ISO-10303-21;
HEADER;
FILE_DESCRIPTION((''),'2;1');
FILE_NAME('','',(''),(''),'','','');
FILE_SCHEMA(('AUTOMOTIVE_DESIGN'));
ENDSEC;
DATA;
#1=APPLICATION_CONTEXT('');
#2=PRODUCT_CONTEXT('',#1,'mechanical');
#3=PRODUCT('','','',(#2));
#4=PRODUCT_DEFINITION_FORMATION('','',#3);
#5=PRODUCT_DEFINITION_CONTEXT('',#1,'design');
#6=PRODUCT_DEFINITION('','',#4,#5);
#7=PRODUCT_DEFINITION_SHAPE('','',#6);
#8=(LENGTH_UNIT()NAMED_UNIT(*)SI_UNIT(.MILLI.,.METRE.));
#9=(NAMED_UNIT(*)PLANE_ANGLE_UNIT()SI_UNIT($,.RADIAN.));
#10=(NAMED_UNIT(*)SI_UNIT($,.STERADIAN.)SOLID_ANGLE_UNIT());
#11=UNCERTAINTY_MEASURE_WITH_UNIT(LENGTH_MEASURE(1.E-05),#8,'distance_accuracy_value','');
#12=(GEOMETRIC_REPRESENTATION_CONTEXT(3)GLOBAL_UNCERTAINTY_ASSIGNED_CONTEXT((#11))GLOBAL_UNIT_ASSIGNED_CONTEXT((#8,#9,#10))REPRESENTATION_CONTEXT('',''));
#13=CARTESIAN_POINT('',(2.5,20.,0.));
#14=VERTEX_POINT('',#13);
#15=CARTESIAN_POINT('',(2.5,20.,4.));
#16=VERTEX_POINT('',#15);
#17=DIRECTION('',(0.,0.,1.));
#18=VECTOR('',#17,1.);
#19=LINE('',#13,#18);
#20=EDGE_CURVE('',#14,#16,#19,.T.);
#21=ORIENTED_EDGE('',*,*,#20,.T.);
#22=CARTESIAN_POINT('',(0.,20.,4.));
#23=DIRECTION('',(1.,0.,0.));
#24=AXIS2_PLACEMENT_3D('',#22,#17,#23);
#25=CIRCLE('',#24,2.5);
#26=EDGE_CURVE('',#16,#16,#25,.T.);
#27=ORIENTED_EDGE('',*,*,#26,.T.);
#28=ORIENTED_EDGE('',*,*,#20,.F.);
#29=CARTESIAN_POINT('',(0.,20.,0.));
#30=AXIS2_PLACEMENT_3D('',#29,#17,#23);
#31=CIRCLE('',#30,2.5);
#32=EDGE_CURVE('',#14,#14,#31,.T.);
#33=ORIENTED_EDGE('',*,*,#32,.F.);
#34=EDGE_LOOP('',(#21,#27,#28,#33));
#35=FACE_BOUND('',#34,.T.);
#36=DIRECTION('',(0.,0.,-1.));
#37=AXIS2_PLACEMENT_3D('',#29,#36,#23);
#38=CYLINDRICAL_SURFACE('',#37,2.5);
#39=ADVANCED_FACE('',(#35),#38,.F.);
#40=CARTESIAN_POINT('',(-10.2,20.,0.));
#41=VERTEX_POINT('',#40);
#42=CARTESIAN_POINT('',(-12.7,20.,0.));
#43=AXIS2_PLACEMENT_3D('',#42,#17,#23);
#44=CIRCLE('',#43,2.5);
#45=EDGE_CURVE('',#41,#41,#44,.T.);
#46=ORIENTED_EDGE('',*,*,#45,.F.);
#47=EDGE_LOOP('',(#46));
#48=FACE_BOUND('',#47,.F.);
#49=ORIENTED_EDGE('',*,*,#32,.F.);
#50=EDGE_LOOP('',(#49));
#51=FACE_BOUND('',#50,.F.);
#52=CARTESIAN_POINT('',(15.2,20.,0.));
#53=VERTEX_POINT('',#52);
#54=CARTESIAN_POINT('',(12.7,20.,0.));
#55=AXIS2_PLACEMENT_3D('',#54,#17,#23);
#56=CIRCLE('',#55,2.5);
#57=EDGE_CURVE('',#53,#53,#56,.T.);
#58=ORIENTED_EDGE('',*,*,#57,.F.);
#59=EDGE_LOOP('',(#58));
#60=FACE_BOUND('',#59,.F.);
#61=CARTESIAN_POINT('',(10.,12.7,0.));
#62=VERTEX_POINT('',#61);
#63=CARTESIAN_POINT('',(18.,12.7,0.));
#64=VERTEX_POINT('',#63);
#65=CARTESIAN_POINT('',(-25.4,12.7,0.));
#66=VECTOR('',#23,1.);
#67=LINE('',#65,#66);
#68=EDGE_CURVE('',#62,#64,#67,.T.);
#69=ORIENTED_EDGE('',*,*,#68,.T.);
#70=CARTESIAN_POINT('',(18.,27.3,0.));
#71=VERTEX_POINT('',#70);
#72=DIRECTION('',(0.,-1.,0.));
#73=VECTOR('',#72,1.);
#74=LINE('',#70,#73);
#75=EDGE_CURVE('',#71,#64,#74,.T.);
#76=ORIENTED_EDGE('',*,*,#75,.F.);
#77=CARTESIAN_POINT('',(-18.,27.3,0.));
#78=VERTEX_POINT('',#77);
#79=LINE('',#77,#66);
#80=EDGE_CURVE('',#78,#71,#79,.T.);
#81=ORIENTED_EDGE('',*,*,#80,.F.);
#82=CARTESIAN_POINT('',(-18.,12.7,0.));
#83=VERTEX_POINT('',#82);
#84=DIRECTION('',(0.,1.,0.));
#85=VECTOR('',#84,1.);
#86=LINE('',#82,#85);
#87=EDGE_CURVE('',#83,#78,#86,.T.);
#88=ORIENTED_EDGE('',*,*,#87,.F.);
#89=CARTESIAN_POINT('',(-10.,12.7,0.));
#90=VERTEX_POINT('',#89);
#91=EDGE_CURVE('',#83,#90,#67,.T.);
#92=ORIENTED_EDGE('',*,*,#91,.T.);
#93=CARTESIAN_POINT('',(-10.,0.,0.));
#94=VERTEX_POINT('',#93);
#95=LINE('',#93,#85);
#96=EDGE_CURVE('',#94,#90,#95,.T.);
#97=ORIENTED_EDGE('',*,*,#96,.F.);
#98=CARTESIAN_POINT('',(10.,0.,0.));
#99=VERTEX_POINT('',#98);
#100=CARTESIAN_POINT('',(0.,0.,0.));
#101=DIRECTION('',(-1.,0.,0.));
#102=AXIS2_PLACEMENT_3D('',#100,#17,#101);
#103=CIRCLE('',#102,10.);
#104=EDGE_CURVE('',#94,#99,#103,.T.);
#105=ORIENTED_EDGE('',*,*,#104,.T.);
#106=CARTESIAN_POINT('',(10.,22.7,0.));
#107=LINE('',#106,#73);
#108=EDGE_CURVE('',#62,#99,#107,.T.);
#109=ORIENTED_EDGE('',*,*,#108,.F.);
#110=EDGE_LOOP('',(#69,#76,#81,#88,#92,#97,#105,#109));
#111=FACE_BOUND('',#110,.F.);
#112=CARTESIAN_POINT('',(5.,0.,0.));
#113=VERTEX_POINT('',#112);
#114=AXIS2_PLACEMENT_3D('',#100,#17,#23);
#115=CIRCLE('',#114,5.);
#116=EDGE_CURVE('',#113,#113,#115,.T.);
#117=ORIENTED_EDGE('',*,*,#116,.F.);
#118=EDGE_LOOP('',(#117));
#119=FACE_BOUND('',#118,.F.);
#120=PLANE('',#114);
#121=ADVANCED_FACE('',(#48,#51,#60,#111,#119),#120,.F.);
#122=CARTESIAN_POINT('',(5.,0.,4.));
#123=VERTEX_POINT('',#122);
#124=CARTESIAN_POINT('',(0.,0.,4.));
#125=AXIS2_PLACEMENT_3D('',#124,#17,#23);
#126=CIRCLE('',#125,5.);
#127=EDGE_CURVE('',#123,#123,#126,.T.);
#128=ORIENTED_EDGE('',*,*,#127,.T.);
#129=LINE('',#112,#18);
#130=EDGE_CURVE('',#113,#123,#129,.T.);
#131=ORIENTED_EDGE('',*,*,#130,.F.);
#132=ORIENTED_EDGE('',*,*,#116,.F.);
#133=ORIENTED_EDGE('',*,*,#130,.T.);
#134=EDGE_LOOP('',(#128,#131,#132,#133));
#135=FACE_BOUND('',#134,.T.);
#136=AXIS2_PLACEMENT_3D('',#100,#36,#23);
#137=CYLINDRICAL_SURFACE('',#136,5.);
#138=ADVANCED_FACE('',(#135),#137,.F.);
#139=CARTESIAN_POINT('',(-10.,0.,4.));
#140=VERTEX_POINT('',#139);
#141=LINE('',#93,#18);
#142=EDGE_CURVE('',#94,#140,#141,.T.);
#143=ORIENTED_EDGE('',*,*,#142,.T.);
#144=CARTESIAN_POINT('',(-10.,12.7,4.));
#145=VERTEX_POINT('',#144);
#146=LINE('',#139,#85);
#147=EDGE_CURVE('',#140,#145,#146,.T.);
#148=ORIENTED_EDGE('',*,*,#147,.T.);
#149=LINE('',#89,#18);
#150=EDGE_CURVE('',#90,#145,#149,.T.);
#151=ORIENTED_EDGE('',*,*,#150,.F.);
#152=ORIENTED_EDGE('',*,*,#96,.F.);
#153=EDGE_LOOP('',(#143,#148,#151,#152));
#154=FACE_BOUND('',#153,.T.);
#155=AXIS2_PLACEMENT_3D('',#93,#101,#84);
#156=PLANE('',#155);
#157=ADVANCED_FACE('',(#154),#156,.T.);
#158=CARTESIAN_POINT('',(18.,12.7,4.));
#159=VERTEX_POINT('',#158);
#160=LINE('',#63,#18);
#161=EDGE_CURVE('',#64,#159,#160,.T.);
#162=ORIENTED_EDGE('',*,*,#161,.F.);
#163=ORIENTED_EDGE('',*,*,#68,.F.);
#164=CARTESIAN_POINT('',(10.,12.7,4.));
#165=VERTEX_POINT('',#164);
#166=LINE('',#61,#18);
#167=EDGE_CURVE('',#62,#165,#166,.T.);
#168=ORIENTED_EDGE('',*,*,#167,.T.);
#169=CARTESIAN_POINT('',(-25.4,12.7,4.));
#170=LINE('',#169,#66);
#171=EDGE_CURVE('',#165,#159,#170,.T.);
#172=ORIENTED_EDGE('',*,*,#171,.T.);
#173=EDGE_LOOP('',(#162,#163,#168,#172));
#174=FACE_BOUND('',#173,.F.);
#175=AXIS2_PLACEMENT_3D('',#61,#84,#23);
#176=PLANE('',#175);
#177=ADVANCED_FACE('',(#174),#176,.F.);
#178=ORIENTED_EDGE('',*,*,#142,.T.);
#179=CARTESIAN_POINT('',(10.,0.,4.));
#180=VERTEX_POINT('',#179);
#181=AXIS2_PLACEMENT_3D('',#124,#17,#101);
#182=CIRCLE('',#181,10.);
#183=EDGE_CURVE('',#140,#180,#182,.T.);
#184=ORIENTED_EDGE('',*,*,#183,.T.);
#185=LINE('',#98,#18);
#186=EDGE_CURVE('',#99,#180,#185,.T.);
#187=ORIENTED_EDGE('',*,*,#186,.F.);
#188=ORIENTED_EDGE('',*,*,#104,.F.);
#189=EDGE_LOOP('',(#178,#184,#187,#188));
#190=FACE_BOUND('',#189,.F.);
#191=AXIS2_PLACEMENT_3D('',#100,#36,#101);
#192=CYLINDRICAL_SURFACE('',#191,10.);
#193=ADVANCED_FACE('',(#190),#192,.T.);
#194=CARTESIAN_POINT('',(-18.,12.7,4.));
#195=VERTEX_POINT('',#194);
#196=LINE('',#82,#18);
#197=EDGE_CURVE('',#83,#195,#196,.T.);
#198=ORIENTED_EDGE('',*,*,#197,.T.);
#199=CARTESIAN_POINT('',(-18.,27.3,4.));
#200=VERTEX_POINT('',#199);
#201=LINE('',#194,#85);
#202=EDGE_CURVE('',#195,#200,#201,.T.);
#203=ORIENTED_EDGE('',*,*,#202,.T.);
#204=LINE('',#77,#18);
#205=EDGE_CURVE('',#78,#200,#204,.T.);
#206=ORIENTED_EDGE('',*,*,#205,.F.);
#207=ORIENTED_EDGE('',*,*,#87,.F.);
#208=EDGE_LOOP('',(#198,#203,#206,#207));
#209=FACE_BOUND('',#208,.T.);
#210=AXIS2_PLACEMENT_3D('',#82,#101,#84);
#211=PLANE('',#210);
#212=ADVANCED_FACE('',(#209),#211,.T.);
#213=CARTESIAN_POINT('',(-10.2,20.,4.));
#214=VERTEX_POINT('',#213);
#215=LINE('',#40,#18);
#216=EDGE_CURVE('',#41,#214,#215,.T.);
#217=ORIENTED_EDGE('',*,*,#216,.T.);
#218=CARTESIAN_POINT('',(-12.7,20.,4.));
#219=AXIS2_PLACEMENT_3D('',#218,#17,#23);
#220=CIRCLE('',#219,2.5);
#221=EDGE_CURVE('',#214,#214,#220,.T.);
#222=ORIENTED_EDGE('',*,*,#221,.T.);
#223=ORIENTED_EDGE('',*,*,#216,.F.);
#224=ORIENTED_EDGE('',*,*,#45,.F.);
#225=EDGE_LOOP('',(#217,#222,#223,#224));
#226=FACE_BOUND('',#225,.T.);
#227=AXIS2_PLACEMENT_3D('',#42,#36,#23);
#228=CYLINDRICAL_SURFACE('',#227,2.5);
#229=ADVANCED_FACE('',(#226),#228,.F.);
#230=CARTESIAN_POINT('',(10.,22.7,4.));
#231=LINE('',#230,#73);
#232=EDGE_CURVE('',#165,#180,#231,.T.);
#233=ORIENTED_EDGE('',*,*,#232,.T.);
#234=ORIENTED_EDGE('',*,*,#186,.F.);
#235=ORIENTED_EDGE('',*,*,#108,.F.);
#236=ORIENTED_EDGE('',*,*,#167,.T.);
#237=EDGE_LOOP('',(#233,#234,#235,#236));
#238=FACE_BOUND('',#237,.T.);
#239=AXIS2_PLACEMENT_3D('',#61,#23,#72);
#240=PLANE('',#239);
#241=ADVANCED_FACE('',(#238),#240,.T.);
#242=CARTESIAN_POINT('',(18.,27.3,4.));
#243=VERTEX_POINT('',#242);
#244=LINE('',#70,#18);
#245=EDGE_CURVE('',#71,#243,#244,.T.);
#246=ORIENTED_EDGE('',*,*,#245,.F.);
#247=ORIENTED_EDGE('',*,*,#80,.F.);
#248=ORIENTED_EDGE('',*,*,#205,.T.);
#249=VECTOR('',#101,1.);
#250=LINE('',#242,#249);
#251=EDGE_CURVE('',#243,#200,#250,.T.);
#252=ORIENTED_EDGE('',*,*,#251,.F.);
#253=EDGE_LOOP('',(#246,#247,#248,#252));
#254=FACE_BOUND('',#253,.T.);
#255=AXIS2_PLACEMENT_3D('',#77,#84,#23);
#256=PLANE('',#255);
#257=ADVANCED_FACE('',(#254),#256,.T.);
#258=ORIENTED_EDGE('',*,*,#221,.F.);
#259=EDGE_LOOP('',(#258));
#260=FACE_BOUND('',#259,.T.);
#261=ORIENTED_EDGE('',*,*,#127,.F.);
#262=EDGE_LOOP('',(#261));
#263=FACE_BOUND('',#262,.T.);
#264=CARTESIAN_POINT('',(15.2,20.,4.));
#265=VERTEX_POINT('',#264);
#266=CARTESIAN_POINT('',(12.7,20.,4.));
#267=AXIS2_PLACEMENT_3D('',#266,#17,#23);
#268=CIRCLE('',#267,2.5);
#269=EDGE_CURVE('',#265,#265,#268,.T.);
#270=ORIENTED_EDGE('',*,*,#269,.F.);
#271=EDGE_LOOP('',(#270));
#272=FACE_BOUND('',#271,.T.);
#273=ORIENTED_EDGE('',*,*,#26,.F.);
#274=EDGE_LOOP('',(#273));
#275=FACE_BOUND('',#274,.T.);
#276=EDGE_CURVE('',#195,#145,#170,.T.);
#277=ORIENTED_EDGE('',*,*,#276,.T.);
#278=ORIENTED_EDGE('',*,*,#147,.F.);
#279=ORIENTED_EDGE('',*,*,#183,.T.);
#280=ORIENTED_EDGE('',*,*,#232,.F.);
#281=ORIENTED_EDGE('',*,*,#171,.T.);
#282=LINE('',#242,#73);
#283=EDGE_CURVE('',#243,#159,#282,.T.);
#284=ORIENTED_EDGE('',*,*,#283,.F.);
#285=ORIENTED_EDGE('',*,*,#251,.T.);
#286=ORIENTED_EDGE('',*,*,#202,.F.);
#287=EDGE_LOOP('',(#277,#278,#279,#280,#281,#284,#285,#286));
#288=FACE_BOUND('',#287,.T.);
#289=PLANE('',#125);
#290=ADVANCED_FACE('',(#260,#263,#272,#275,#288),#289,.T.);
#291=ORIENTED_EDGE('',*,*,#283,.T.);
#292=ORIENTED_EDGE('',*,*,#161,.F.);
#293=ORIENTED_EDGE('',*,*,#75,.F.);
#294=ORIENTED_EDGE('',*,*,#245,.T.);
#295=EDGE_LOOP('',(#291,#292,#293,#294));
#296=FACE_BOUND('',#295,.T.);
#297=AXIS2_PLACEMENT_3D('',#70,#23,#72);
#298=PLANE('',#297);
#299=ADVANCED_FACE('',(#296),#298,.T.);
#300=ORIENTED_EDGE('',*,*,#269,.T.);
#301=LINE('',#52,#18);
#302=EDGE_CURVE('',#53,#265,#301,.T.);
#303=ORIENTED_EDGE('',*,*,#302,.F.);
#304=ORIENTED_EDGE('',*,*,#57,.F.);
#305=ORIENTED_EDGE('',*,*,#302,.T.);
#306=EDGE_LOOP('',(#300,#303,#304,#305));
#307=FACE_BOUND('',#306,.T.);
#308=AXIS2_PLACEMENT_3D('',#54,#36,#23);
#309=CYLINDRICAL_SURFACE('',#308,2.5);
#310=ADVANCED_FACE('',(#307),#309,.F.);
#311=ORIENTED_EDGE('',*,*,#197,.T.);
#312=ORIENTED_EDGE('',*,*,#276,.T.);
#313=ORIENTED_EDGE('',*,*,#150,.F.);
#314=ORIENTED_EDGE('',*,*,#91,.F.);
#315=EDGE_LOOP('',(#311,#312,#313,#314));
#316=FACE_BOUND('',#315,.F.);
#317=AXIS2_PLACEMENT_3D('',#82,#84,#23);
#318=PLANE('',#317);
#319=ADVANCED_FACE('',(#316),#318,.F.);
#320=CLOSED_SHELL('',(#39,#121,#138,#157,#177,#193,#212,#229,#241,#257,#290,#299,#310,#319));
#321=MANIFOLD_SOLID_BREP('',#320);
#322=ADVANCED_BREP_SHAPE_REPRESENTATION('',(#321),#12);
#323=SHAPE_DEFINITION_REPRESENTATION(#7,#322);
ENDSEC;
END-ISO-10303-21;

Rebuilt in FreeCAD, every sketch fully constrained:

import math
import FreeCAD as App
import Part
import Sketcher
Q = App.Units.Quantity

doc = App.newDocument("Part")
body = doc.addObject("PartDesign::Body", "Body")

# Sketch on XY plane
sketch1 = body.newObject("Sketcher::SketchObject", "Sketch")
sketch1.AttachmentSupport = (doc.getObject("XY_Plane"), [""])
sketch1.MapMode = "FlatFace"
sketch1.addGeometry(Part.LineSegment(App.Vector(-10, 12.7, 0), App.Vector(-10, 0, 0)), False)
sketch1.addGeometry(Part.ArcOfCircle(Part.Circle(App.Vector(0, 0, 0), App.Vector(0, 0, 1), 10), math.radians(180), math.radians(360)), False)
sketch1.addGeometry(Part.LineSegment(App.Vector(10, 0, 0), App.Vector(10, 12.7, 0)), False)
sketch1.addGeometry(Part.LineSegment(App.Vector(10, 12.7, 0), App.Vector(18, 12.7, 0)), False)
sketch1.addGeometry(Part.LineSegment(App.Vector(18, 12.7, 0), App.Vector(18, 27.3, 0)), False)
sketch1.addGeometry(Part.LineSegment(App.Vector(18, 27.3, 0), App.Vector(-18, 27.3, 0)), False)
sketch1.addGeometry(Part.LineSegment(App.Vector(-18, 27.3, 0), App.Vector(-18, 12.7, 0)), False)
sketch1.addGeometry(Part.LineSegment(App.Vector(-18, 12.7, 0), App.Vector(-10, 12.7, 0)), False)
sketch1.addGeometry(Part.Circle(App.Vector(0, 0, 0), App.Vector(0, 0, 1), 5), False)
sketch1.addGeometry(Part.Circle(App.Vector(0, 20, 0), App.Vector(0, 0, 1), 2.5), False)
sketch1.addGeometry(Part.Circle(App.Vector(-12.7, 20, 0), App.Vector(0, 0, 1), 2.5), False)
sketch1.addGeometry(Part.Circle(App.Vector(12.7, 20, 0), App.Vector(0, 0, 1), 2.5), False)
sketch1.addConstraint(Sketcher.Constraint("Tangent", 0, 2, 1, 1))
sketch1.addConstraint(Sketcher.Constraint("Tangent", 1, 2, 2, 1))
sketch1.addConstraint(Sketcher.Constraint("Coincident", 2, 2, 3, 1))
sketch1.addConstraint(Sketcher.Constraint("Coincident", 3, 2, 4, 1))
sketch1.addConstraint(Sketcher.Constraint("Coincident", 4, 2, 5, 1))
sketch1.addConstraint(Sketcher.Constraint("Coincident", 5, 2, 6, 1))
sketch1.addConstraint(Sketcher.Constraint("Coincident", 6, 2, 7, 1))
sketch1.addConstraint(Sketcher.Constraint("Coincident", 7, 2, 0, 1))
sketch1.addConstraint(Sketcher.Constraint("Vertical", 0))
sketch1.addConstraint(Sketcher.Constraint("Vertical", 2))
sketch1.addConstraint(Sketcher.Constraint("Horizontal", 3))
sketch1.addConstraint(Sketcher.Constraint("Vertical", 4))
sketch1.addConstraint(Sketcher.Constraint("Horizontal", 5))
sketch1.addConstraint(Sketcher.Constraint("Vertical", 6))
sketch1.addConstraint(Sketcher.Constraint("Horizontal", 7))
sketch1.addConstraint(Sketcher.Constraint("Coincident", 1, 3, -1, 1))
sketch1.addConstraint(Sketcher.Constraint("Coincident", 8, 3, -1, 1))
sketch1.addConstraint(Sketcher.Constraint("Equal", 9, 10))
sketch1.addConstraint(Sketcher.Constraint("Equal", 10, 11))
sketch1.addConstraint(Sketcher.Constraint("Symmetric", 10, 3, 11, 3, -2))
sketch1.addConstraint(Sketcher.Constraint("Symmetric", 3, 2, 6, 2, -2))
sketch1.addConstraint(Sketcher.Constraint("PointOnObject", 9, 3, -2))
sketch1.addConstraint(Sketcher.Constraint("Horizontal", 9, 3, 10, 3))
sketch1.addConstraint(Sketcher.Constraint("Diameter", 8, Q("10 mm")))
sketch1.addConstraint(Sketcher.Constraint("Diameter", 9, Q("5 mm")))
sketch1.addConstraint(Sketcher.Constraint("Radius", 1, Q("10 mm")))
sketch1.addConstraint(Sketcher.Constraint("DistanceY", 0, 2, 0, 1, Q("12.7 mm")))
sketch1.addConstraint(Sketcher.Constraint("DistanceY", -1, 1, 9, 3, Q("20 mm")))
sketch1.addConstraint(Sketcher.Constraint("DistanceX", -1, 1, 3, 2, Q("18 mm")))
sketch1.addConstraint(Sketcher.Constraint("DistanceX", 10, 3, -1, 1, Q("12.7 mm")))
sketch1.addConstraint(Sketcher.Constraint("DistanceY", 11, 3, 4, 2, Q("7.3 mm")))
pad1 = body.newObject("PartDesign::Pad", "Pad")
pad1.Profile = sketch1
pad1.Length = 4

doc.recompute()
